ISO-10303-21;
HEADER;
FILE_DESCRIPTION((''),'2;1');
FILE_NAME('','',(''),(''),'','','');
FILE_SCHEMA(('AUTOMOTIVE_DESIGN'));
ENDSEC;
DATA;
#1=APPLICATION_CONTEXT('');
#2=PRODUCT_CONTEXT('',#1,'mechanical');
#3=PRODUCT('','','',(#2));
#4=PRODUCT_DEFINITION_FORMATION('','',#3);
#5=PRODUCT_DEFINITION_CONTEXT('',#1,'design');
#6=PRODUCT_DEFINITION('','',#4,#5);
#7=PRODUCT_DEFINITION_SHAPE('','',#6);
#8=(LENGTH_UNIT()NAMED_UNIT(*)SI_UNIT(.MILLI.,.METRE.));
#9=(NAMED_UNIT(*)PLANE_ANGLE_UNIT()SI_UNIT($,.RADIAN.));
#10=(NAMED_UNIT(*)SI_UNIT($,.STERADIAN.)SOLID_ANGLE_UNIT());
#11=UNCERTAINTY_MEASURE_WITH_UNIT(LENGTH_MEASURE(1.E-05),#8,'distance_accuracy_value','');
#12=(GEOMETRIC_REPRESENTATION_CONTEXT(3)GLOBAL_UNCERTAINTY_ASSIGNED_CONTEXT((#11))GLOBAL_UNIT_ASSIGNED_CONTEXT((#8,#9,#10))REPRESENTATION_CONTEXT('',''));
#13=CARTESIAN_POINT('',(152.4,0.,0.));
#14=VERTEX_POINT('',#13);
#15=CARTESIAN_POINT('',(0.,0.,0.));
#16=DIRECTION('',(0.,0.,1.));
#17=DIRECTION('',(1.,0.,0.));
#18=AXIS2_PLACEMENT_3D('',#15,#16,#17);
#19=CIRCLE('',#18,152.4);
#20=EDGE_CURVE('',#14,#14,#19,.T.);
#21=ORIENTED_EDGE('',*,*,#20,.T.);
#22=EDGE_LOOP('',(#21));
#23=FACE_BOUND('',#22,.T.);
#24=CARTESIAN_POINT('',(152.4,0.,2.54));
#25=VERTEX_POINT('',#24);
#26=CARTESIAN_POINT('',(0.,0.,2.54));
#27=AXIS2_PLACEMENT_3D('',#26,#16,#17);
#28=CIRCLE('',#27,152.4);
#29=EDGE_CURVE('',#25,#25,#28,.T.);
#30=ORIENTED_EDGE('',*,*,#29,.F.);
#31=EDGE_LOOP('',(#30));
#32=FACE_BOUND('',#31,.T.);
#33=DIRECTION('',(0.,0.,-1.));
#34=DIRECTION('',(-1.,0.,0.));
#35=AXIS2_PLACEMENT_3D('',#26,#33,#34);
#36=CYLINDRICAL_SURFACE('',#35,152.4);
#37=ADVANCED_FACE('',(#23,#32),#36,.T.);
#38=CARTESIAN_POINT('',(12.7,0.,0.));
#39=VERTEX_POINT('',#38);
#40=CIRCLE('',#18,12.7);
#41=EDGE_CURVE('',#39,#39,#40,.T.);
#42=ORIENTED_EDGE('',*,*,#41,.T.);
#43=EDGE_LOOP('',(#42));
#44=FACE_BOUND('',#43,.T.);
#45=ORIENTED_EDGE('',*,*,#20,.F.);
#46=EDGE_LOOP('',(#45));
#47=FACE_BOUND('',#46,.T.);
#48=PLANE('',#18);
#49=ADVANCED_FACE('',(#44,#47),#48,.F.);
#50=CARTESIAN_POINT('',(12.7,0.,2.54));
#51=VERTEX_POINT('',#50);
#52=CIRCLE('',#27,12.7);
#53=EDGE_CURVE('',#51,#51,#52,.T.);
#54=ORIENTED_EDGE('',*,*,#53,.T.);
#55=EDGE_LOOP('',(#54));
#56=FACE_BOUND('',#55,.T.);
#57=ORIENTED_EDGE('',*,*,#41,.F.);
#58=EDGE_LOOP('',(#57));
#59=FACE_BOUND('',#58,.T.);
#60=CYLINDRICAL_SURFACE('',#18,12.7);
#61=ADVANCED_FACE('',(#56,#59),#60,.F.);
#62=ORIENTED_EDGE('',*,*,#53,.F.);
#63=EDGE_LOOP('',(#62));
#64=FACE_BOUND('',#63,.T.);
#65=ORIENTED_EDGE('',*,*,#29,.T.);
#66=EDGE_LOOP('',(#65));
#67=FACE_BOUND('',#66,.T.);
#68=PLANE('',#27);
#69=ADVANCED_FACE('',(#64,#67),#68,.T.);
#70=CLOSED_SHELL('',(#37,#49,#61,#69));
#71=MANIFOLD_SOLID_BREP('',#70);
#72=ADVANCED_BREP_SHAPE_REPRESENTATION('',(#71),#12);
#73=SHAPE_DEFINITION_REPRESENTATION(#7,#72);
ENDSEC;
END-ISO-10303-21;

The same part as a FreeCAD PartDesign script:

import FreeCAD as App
import Part
import Sketcher

V = App.Vector
Q = App.Units.Quantity

doc = App.newDocument("Part")
body = doc.addObject("PartDesign::Body", "Body")

# Sketch on XY plane
sketch1 = doc.addObject("Sketcher::SketchObject", "Sketch")
body.addObject(sketch1)
sketch1.AttachmentSupport = (doc.XY_Plane, [""])
sketch1.MapMode = "FlatFace"
sketch1.addGeometry(Part.Circle(V(0, 0, 0), V(0, 0, 1), 152.4), False)
sketch1.addConstraint([
    Sketcher.Constraint("Coincident", 0, 3, -1, 1),
    Sketcher.Constraint("Diameter", 0, Q("12 in")),
])
pad1 = doc.addObject("PartDesign::Pad", "Pad")
body.addObject(pad1)
pad1.Profile = sketch1
pad1.Length = Q("0.1 in")

# Sketch on XY plane
sketch2 = doc.addObject("Sketcher::SketchObject", "Sketch001")
body.addObject(sketch2)
sketch2.AttachmentSupport = (doc.XY_Plane, [""])
sketch2.MapMode = "FlatFace"
sketch2.AttachmentOffset = App.Placement(V(0, 0, 0.1 * 25.4), App.Rotation())
sketch2.addGeometry(Part.Circle(V(0, 0, 0), V(0, 0, 1), 12.7), False)
sketch2.addConstraint([
    Sketcher.Constraint("Coincident", 0, 3, -1, 1),
    Sketcher.Constraint("Diameter", 0, Q("1 in")),
])
pocket1 = doc.addObject("PartDesign::Pocket", "Pocket")
body.addObject(pocket1)
pocket1.Profile = sketch2
pocket1.Type = "ThroughAll"

doc.recompute()
